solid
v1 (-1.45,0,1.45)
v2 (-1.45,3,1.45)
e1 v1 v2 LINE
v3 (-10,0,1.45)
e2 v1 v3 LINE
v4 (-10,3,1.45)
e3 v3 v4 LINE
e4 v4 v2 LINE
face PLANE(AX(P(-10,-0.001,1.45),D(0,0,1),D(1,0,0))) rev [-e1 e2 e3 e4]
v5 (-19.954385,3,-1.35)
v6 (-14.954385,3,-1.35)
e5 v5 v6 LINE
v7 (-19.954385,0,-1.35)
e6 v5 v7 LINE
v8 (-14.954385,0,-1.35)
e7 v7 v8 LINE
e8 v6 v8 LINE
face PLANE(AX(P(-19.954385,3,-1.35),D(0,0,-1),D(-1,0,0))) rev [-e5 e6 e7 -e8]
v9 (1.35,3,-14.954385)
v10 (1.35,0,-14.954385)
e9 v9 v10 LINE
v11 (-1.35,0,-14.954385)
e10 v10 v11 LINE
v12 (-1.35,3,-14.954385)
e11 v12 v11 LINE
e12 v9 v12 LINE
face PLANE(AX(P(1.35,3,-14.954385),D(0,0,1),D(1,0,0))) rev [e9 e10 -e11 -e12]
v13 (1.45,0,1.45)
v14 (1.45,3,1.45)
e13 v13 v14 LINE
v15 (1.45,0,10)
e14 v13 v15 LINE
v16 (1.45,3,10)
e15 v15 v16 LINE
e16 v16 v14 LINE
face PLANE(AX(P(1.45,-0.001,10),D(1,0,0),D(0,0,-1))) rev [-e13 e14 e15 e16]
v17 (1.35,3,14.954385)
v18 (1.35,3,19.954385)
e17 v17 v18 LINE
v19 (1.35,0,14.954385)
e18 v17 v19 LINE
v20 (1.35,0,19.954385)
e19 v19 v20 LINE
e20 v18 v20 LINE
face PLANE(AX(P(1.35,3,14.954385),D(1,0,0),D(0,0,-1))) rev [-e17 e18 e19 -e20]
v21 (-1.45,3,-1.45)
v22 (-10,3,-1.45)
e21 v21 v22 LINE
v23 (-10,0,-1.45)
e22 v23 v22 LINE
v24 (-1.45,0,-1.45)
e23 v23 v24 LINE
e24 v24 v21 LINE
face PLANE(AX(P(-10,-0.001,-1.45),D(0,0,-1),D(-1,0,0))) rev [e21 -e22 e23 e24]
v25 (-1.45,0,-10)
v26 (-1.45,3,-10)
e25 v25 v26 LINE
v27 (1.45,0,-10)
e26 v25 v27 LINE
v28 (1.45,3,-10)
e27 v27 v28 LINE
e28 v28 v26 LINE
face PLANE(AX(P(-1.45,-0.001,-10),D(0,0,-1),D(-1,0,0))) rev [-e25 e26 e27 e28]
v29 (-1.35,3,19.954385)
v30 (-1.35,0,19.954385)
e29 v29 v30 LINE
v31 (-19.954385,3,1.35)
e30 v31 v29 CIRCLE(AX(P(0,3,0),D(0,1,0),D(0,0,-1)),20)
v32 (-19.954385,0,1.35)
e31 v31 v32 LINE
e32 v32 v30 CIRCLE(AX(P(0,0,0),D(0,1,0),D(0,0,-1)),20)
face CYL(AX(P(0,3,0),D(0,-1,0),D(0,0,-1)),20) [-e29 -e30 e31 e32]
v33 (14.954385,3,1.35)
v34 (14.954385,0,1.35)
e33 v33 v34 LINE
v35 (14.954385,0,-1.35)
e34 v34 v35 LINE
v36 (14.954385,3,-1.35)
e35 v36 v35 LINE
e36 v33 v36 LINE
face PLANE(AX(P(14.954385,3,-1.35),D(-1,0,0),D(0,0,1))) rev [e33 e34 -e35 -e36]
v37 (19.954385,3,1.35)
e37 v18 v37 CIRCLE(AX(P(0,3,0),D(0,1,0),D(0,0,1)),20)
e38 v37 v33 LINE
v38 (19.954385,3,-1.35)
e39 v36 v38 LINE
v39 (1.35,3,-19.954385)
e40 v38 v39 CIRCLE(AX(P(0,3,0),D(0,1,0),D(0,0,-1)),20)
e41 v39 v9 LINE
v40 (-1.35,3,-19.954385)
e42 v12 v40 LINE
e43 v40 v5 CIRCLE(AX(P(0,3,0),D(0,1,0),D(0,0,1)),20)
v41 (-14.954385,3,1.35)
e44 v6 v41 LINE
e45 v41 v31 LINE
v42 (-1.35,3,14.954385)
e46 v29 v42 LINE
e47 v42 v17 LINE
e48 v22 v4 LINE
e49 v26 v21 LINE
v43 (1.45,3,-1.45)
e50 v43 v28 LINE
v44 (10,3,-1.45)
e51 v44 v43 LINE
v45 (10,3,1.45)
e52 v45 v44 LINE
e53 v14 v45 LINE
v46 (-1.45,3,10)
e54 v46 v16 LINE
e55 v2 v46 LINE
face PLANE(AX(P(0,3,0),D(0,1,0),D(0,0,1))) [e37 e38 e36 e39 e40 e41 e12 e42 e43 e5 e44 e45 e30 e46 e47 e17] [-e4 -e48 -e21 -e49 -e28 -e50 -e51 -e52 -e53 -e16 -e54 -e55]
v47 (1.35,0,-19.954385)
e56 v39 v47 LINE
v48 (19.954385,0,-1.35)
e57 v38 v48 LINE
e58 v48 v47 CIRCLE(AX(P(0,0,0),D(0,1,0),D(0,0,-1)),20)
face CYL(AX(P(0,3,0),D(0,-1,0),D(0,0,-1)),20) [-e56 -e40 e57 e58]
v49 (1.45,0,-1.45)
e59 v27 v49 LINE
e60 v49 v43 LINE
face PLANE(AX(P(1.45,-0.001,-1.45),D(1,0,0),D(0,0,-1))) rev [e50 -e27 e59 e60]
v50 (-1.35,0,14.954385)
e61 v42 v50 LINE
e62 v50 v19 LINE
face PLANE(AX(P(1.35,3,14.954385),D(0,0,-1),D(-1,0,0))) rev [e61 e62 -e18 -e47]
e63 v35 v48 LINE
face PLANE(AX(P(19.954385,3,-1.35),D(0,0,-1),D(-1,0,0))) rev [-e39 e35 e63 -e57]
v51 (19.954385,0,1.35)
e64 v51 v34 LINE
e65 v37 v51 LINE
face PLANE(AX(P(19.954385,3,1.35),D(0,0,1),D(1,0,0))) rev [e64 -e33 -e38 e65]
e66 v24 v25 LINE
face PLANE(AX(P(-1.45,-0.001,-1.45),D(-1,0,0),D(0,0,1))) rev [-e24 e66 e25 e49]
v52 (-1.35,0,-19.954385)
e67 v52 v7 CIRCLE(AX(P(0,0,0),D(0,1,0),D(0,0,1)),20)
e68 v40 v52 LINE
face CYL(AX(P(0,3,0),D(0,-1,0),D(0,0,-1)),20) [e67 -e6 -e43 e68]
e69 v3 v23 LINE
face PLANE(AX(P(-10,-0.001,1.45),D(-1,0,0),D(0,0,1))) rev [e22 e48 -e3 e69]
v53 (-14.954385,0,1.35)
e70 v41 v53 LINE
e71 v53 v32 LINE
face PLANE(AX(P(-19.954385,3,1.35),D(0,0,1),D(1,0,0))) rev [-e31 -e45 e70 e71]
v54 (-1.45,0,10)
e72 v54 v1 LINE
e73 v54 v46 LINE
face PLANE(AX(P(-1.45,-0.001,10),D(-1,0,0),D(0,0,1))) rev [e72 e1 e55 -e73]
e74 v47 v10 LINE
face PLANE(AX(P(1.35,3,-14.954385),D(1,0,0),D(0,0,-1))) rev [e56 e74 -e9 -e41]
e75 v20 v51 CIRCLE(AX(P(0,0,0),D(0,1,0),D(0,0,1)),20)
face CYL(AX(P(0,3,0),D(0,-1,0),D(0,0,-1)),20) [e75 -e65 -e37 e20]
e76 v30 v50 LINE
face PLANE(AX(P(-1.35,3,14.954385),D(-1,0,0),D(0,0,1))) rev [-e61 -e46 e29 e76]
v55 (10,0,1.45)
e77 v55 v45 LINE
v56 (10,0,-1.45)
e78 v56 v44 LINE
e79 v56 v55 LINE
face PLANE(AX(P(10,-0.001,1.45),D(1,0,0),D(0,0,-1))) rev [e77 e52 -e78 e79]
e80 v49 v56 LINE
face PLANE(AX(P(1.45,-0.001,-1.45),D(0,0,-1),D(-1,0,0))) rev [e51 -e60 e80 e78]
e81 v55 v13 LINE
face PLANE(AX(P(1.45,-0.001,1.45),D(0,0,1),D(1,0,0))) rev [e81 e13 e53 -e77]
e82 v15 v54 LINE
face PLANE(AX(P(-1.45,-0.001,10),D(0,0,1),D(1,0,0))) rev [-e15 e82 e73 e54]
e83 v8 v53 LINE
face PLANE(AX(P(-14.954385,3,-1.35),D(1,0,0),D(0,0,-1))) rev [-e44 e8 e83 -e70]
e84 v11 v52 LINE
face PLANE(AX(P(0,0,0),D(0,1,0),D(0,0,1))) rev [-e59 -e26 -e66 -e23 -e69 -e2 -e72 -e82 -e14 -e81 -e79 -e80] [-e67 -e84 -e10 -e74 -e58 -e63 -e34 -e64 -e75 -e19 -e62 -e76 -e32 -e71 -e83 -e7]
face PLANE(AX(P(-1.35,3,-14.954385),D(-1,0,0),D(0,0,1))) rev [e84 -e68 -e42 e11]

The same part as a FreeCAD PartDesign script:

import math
import FreeCAD as App
import Part
import Sketcher


def add_polygon(sketch, points):
    """Adds a closed chain of lines whose ends are joined by coincident constraints."""
    first, n = sketch.GeometryCount, len(points)
    for a, b in zip(points, points[1:] + points[:1]):
        sketch.addGeometry(Part.LineSegment(App.Vector(*a, 0), App.Vector(*b, 0)), False)
    for i in range(n):
        sketch.addConstraint(Sketcher.Constraint("Coincident", first + i, 2, first + (i + 1) % n, 1))

doc = App.newDocument("Part")
params = doc.addObject("Spreadsheet::Sheet", "Params")
for row, (alias, value) in enumerate([
    ("sketch1_radius", "20 mm"),
    ("sketch1_width", "5 mm"),
    ("sketch1_width2", "2.7 mm"),
    ("pad1_length", "3 mm"),
    ("sketch2_width", "2.9 mm"),
], start=1):
    params.set(f"A{row}", alias)
    params.set(f"B{row}", "=" + value)
    params.setAlias(f"B{row}", alias)

body = doc.addObject("PartDesign::Body", "Body")

# Sketch on XZ plane
sketch1 = doc.addObject("Sketcher::SketchObject", "Sketch")
body.addObject(sketch1)
sketch1.AttachmentSupport = (doc.XZ_Plane, [""])
sketch1.MapMode = "FlatFace"
sketch1.addGeometry(Part.LineSegment(App.Vector(1.4, -15, 0), App.Vector(-1.4, -15, 0)), False)
sketch1.addGeometry(Part.LineSegment(App.Vector(-1.4, -15, 0), App.Vector(-1.4, -20, 0)), False)
sketch1.addGeometry(Part.ArcOfCircle(Part.Circle(App.Vector(0, 0, 0), App.Vector(0, 0, 1), 20), math.radians(-176), math.radians(-94)), False)
sketch1.addGeometry(Part.LineSegment(App.Vector(-20, -1.4, 0), App.Vector(-15, -1.4, 0)), False)
sketch1.addGeometry(Part.LineSegment(App.Vector(-15, -1.4, 0), App.Vector(-15, 1.4, 0)), False)
sketch1.addGeometry(Part.LineSegment(App.Vector(-15, 1.4, 0), App.Vector(-20, 1.4, 0)), False)
sketch1.addGeometry(Part.ArcOfCircle(Part.Circle(App.Vector(0, 0, 0), App.Vector(0, 0, 1), 20), math.radians(94), math.radians(176)), False)
sketch1.addGeometry(Part.LineSegment(App.Vector(-1.4, 20, 0), App.Vector(-1.4, 15, 0)), False)
sketch1.addGeometry(Part.LineSegment(App.Vector(-1.4, 15, 0), App.Vector(1.4, 15, 0)), False)
sketch1.addGeometry(Part.LineSegment(App.Vector(1.4, 15, 0), App.Vector(1.4, 20, 0)), False)
sketch1.addGeometry(Part.ArcOfCircle(Part.Circle(App.Vector(0, 0, 0), App.Vector(0, 0, 1), 20), math.radians(4), math.radians(86)), False)
sketch1.addGeometry(Part.LineSegment(App.Vector(20, 1.4, 0), App.Vector(15, 1.4, 0)), False)
sketch1.addGeometry(Part.LineSegment(App.Vector(15, 1.4, 0), App.Vector(15, -1.4, 0)), False)
sketch1.addGeometry(Part.LineSegment(App.Vector(15, -1.4, 0), App.Vector(20, -1.4, 0)), False)
sketch1.addGeometry(Part.ArcOfCircle(Part.Circle(App.Vector(0, 0, 0), App.Vector(0, 0, 1), 20), math.radians(-86), math.radians(-4)), False)
sketch1.addGeometry(Part.LineSegment(App.Vector(1.4, -20, 0), App.Vector(1.4, -15, 0)), False)
sketch1.addConstraint(Sketcher.Constraint("Coincident", 0, 2, 1, 1))
sketch1.addConstraint(Sketcher.Constraint("Coincident", 1, 2, 2, 2))
sketch1.addConstraint(Sketcher.Constraint("Coincident", 2, 1, 3, 1))
sketch1.addConstraint(Sketcher.Constraint("Coincident", 3, 2, 4, 1))
sketch1.addConstraint(Sketcher.Constraint("Coincident", 4, 2, 5, 1))
sketch1.addConstraint(Sketcher.Constraint("Coincident", 5, 2, 6, 2))
sketch1.addConstraint(Sketcher.Constraint("Coincident", 6, 1, 7, 1))
sketch1.addConstraint(Sketcher.Constraint("Coincident", 7, 2, 8, 1))
sketch1.addConstraint(Sketcher.Constraint("Coincident", 8, 2, 9, 1))
sketch1.addConstraint(Sketcher.Constraint("Coincident", 9, 2, 10, 2))
sketch1.addConstraint(Sketcher.Constraint("Coincident", 10, 1, 11, 1))
sketch1.addConstraint(Sketcher.Constraint("Coincident", 11, 2, 12, 1))
sketch1.addConstraint(Sketcher.Constraint("Coincident", 12, 2, 13, 1))
sketch1.addConstraint(Sketcher.Constraint("Coincident", 13, 2, 14, 2))
sketch1.addConstraint(Sketcher.Constraint("Coincident", 14, 1, 15, 1))
sketch1.addConstraint(Sketcher.Constraint("Coincident", 15, 2, 0, 1))
sketch1.addConstraint(Sketcher.Constraint("Horizontal", 0))
sketch1.addConstraint(Sketcher.Constraint("Vertical", 1))
sketch1.addConstraint(Sketcher.Constraint("Horizontal", 3))
sketch1.addConstraint(Sketcher.Constraint("Vertical", 4))
sketch1.addConstraint(Sketcher.Constraint("Horizontal", 5))
sketch1.addConstraint(Sketcher.Constraint("Vertical", 7))
sketch1.addConstraint(Sketcher.Constraint("Horizontal", 8))
sketch1.addConstraint(Sketcher.Constraint("Vertical", 9))
sketch1.addConstraint(Sketcher.Constraint("Horizontal", 11))
sketch1.addConstraint(Sketcher.Constraint("Vertical", 12))
sketch1.addConstraint(Sketcher.Constraint("Horizontal", 13))
sketch1.addConstraint(Sketcher.Constraint("Vertical", 15))
sketch1.addConstraint(Sketcher.Constraint("Coincident", 2, 3, -1, 1))
sketch1.addConstraint(Sketcher.Constraint("Coincident", 6, 3, -1, 1))
sketch1.addConstraint(Sketcher.Constraint("Coincident", 10, 3, -1, 1))
sketch1.addConstraint(Sketcher.Constraint("Coincident", 14, 3, -1, 1))
sketch1.addConstraint(Sketcher.Constraint("Equal", 2, 6))
sketch1.addConstraint(Sketcher.Constraint("Equal", 6, 10))
sketch1.addConstraint(Sketcher.Constraint("Equal", 10, 14))
sketch1.addConstraint(Sketcher.Constraint("Symmetric", 0, 2, 8, 2, -1, 1))
sketch1.addConstraint(Sketcher.Constraint("Symmetric", 3, 2, 11, 2, -1, 1))
sketch1.addConstraint(Sketcher.Constraint("Horizontal", 6, 1, 9, 2))
sketch1.addConstraint(Sketcher.Constraint("Horizontal", 5, 2, 10, 1))
sketch1.addConstraint(Sketcher.Constraint("Horizontal", 3, 2, 12, 2))
sketch1.addConstraint(Sketcher.Constraint("Horizontal", 1, 2, 14, 1))
sketch1.addConstraint(Sketcher.Constraint("Equal", 13, 1))
sketch1.addConstraint(Sketcher.Constraint("Equal", 8, 4))
sketch1.addConstraint(Sketcher.Constraint("Radius", 2, 20.0))
sketch1.addConstraint(Sketcher.Constraint("DistanceX", 3, 1, 3, 2, 5.0))
sketch1.addConstraint(Sketcher.Constraint("DistanceX", 0, 2, 0, 1, 2.7))
sketch1.setExpression("Constraints[43]", "Params.sketch1_radius")
sketch1.setExpression("Constraints[44]", "Params.sketch1_width")
sketch1.setExpression("Constraints[45]", "Params.sketch1_width2")
pad1 = doc.addObject("PartDesign::Pad", "Pad")
body.addObject(pad1)
pad1.Profile = sketch1
pad1.setExpression("Length", "Params.pad1_length")
pad1.Reversed = True

# Sketch on XZ plane
sketch2 = doc.addObject("Sketcher::SketchObject", "Sketch001")
body.addObject(sketch2)
sketch2.AttachmentSupport = (doc.XZ_Plane, [""])
sketch2.MapMode = "FlatFace"
sketch2.AttachmentOffset = App.Placement(App.Vector(0, 0, -3), App.Rotation())
add_polygon(sketch2, [(10, -1.45), (1.45, -1.45), (1.45, -10), (-1.45, -10), (-1.45, -1.45), (-10, -1.45), (-10, 1.45), (-1.45, 1.45), (-1.45, 10), (1.45, 10), (1.45, 1.45), (10, 1.45)])  # lines 0-11
sketch2.addConstraint(Sketcher.Constraint("Horizontal", 0))
sketch2.addConstraint(Sketcher.Constraint("Vertical", 1))
sketch2.addConstraint(Sketcher.Constraint("Horizontal", 2))
sketch2.addConstraint(Sketcher.Constraint("Vertical", 3))
sketch2.addConstraint(Sketcher.Constraint("Horizontal", 4))
sketch2.addConstraint(Sketcher.Constraint("Vertical", 5))
sketch2.addConstraint(Sketcher.Constraint("Horizontal", 6))
sketch2.addConstraint(Sketcher.Constraint("Vertical", 7))
sketch2.addConstraint(Sketcher.Constraint("Horizontal", 8))
sketch2.addConstraint(Sketcher.Constraint("Vertical", 9))
sketch2.addConstraint(Sketcher.Constraint("Horizontal", 10))
sketch2.addConstraint(Sketcher.Constraint("Vertical", 11))
sketch2.addConstraint(Sketcher.Constraint("Symmetric", 0, 2, 6, 2, -1, 1))
sketch2.addConstraint(Sketcher.Constraint("Symmetric", 2, 2, 8, 2, -1, 1))
sketch2.addConstraint(Sketcher.Constraint("Symmetric", 4, 2, 10, 2, -1, 1))
sketch2.addConstraint(Sketcher.Constraint("Symmetric", 0, 2, 3, 2, -2))
sketch2.addConstraint(Sketcher.Constraint("Equal", 10, 1))
sketch2.addConstraint(Sketcher.Constraint("Equal", 8, 5))
sketch2.addConstraint(Sketcher.Constraint("DistanceX", 2, 2, 2, 1, 2.9))
sketch2.addConstraint(Sketcher.Constraint("DistanceY", 1, 2, -1, 1, 10.0))
sketch2.setExpression("Constraints[30]", "Params.sketch2_width")
pocket1 = doc.addObject("PartDesign::Pocket", "Pocket")
body.addObject(pocket1)
pocket1.Profile = sketch2
pocket1.Type = "UpToFirst"
pocket1.Reversed = True

doc.recompute()
